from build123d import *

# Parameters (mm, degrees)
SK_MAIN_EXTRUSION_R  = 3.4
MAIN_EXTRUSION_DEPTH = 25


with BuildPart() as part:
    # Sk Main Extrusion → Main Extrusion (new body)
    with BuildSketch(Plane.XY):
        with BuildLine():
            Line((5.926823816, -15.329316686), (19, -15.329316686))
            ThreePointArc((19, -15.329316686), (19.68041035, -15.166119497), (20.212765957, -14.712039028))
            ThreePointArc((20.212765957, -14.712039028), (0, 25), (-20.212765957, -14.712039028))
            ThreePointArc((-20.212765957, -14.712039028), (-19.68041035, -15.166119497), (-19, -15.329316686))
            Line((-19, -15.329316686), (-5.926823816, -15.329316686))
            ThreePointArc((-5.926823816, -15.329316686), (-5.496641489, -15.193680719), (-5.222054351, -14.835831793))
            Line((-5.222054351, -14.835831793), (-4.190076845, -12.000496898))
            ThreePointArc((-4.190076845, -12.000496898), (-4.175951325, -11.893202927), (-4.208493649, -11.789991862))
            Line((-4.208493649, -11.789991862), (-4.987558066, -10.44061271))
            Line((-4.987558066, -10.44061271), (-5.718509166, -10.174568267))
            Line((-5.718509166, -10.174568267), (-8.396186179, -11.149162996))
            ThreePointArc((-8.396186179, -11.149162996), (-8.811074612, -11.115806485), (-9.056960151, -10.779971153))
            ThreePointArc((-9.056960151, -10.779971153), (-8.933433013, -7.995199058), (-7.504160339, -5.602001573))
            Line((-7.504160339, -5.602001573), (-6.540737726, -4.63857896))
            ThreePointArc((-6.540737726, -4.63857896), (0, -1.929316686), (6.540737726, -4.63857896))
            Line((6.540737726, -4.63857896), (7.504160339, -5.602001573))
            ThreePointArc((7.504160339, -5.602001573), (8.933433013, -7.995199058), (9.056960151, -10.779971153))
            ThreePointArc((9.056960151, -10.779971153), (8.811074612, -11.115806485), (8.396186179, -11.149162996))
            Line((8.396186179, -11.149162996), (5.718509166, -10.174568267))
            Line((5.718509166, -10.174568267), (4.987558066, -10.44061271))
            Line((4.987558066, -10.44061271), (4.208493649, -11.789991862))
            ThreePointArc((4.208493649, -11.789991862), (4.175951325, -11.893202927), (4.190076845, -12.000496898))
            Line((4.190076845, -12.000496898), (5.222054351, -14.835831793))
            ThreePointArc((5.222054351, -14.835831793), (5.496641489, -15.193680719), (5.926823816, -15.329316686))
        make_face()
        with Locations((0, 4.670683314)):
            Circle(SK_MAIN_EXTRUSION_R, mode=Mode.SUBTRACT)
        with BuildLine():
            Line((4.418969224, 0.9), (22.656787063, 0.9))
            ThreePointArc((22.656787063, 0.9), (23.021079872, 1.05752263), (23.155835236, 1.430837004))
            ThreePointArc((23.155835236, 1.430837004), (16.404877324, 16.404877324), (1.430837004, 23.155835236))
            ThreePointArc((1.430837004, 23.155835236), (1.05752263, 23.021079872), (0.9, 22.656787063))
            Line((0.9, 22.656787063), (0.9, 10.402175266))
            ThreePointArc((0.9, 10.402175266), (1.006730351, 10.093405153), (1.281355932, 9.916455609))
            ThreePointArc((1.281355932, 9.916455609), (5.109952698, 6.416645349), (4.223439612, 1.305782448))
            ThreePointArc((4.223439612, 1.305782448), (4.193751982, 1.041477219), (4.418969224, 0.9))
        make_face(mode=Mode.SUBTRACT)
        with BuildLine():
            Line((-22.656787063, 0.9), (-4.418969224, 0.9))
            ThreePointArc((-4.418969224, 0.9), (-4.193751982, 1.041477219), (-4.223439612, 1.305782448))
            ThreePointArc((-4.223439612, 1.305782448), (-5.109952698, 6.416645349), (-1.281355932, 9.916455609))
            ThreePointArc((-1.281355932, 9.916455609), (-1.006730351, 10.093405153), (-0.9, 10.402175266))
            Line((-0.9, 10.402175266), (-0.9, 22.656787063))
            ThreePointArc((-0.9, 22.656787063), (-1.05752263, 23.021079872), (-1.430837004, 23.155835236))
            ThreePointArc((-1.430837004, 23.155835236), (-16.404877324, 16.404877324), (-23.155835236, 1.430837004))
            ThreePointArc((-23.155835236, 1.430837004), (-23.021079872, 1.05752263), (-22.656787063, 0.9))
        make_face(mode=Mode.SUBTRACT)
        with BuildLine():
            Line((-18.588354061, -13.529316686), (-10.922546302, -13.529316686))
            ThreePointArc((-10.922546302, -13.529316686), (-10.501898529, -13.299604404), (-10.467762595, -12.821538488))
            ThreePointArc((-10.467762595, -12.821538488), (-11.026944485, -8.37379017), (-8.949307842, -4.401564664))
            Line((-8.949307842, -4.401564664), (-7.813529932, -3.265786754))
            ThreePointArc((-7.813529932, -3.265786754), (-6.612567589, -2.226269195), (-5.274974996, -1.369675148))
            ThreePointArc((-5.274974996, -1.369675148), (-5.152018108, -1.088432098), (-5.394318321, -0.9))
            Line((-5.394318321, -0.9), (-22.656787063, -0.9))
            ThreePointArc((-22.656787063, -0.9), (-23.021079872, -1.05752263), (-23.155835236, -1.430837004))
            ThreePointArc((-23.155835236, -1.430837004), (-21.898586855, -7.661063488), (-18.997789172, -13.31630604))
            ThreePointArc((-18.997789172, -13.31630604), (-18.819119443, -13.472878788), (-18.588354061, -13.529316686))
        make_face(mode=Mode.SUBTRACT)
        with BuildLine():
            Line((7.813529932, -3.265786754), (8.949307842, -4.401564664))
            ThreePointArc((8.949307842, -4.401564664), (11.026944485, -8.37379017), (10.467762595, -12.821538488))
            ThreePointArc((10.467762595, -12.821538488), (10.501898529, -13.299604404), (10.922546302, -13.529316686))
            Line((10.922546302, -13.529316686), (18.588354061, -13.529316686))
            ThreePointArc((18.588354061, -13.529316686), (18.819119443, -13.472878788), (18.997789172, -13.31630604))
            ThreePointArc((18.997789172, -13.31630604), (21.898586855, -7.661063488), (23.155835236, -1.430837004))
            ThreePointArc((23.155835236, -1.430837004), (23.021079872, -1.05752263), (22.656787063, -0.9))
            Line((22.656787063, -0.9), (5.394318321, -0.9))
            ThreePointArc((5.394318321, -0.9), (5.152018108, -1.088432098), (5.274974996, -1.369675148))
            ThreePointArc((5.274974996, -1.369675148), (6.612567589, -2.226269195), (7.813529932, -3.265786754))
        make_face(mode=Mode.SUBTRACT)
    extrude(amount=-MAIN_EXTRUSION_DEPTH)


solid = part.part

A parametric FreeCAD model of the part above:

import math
import FreeCAD as App
import Part
import Sketcher
Q = App.Units.Quantity

doc = App.newDocument("Part")
body = doc.addObject("PartDesign::Body", "Body")

sketch1 = body.newObject("Sketcher::SketchObject", "Sketch")
sketch1.AttachmentSupport = (doc.getObject("XY_Plane"), [""])
sketch1.MapMode = "FlatFace"
sketch1.addGeometry([
    Part.LineSegment(App.Vector(5.93, -15.33, 0), App.Vector(19, -15.33, 0)),
    Part.ArcOfCircle(Part.Circle(App.Vector(19, -13.83, 0), App.Vector(0, 0, 1), 1.5), math.radians(-90), math.radians(-36)),
    Part.ArcOfCircle(Part.Circle(App.Vector(0, 0, 0), App.Vector(0, 0, 1), 25), math.radians(-36), math.radians(216)),
    Part.ArcOfCircle(Part.Circle(App.Vector(-19, -13.83, 0), App.Vector(0, 0, 1), 1.5), math.radians(-144), math.radians(-90)),
    Part.LineSegment(App.Vector(-19, -15.33, 0), App.Vector(-5.93, -15.33, 0)),
    Part.ArcOfCircle(Part.Circle(App.Vector(-5.93, -14.58, 0), App.Vector(0, 0, 1), 0.75), math.radians(-90), math.radians(-20)),
    Part.LineSegment(App.Vector(-5.22, -14.84, 0), App.Vector(-4.19, -12, 0)),
    Part.ArcOfCircle(Part.Circle(App.Vector(-4.42, -11.91, 0), App.Vector(0, 0, 1), 0.25), math.radians(-20), math.radians(30)),
    Part.LineSegment(App.Vector(-4.21, -11.79, 0), App.Vector(-4.99, -10.44, 0)),
    Part.LineSegment(App.Vector(-4.99, -10.44, 0), App.Vector(-5.72, -10.17, 0)),
    Part.LineSegment(App.Vector(-5.72, -10.17, 0), App.Vector(-8.4, -11.15, 0)),
    Part.ArcOfCircle(Part.Circle(App.Vector(-8.57, -10.68, 0), App.Vector(0, 0, 1), 0.5), math.radians(-168), math.radians(-70)),
    Part.ArcOfCircle(Part.Circle(App.Vector(-3.47, -9.63, 0), App.Vector(0, 0, 1), 5.7), math.radians(135), math.radians(192)),
    Part.LineSegment(App.Vector(-7.5, -5.6, 0), App.Vector(-6.54, -4.64, 0)),
    Part.ArcOfCircle(Part.Circle(App.Vector(0, -11.18, 0), App.Vector(0, 0, 1), 9.25), math.radians(45), math.radians(135)),
    Part.LineSegment(App.Vector(6.54, -4.64, 0), App.Vector(7.5, -5.6, 0)),
    Part.ArcOfCircle(Part.Circle(App.Vector(3.47, -9.63, 0), App.Vector(0, 0, 1), 5.7), math.radians(-12), math.radians(45)),
    Part.ArcOfCircle(Part.Circle(App.Vector(8.57, -10.68, 0), App.Vector(0, 0, 1), 0.5), math.radians(-110), math.radians(-12)),
    Part.LineSegment(App.Vector(8.4, -11.15, 0), App.Vector(5.72, -10.17, 0)),
    Part.LineSegment(App.Vector(5.72, -10.17, 0), App.Vector(4.99, -10.44, 0)),
    Part.LineSegment(App.Vector(4.99, -10.44, 0), App.Vector(4.21, -11.79, 0)),
    Part.ArcOfCircle(Part.Circle(App.Vector(4.42, -11.91, 0), App.Vector(0, 0, 1), 0.25), math.radians(150), math.radians(200)),
    Part.LineSegment(App.Vector(4.19, -12, 0), App.Vector(5.22, -14.84, 0)),
    Part.ArcOfCircle(Part.Circle(App.Vector(5.93, -14.58, 0), App.Vector(0, 0, 1), 0.75), math.radians(-160), math.radians(-90)),
    Part.LineSegment(App.Vector(-10.92, -13.53, 0), App.Vector(-18.59, -13.53, 0)),
    Part.ArcOfCircle(Part.Circle(App.Vector(-18.59, -13.03, 0), App.Vector(0, 0, 1), 0.5), math.radians(-145), math.radians(-90)),
    Part.ArcOfCircle(Part.Circle(App.Vector(0, 0, 0), App.Vector(0, 0, 1), 23.2), math.radians(-176), math.radians(-145)),
    Part.ArcOfCircle(Part.Circle(App.Vector(-22.66, -1.4, 0), App.Vector(0, 0, 1), 0.5), math.radians(90), math.radians(184)),
    Part.LineSegment(App.Vector(-22.66, -0.9, 0), App.Vector(-5.39, -0.9, 0)),
    Part.ArcOfCircle(Part.Circle(App.Vector(-5.39, -1.15, 0), App.Vector(0, 0, 1), 0.25), math.radians(-61), math.radians(90)),
    Part.ArcOfCircle(Part.Circle(App.Vector(0, -11.08, 0), App.Vector(0, 0, 1), 11.05), math.radians(118.51), math.radians(135)),
    Part.LineSegment(App.Vector(-7.81, -3.27, 0), App.Vector(-8.95, -4.4, 0)),
    Part.ArcOfCircle(Part.Circle(App.Vector(-3.65, -9.7, 0), App.Vector(0, 0, 1), 7.5), math.radians(135), math.radians(205)),
    Part.ArcOfCircle(Part.Circle(App.Vector(-10.92, -13.03, 0), App.Vector(0, 0, 1), 0.5), math.radians(-90), math.radians(25)),
    Part.LineSegment(App.Vector(8.95, -4.4, 0), App.Vector(7.81, -3.27, 0)),
    Part.ArcOfCircle(Part.Circle(App.Vector(0, -11.08, 0), App.Vector(0, 0, 1), 11.05), math.radians(45), math.radians(61.49)),
    Part.ArcOfCircle(Part.Circle(App.Vector(5.39, -1.15, 0), App.Vector(0, 0, 1), 0.25), math.radians(90), math.radians(241)),
    Part.LineSegment(App.Vector(5.39, -0.9, 0), App.Vector(22.66, -0.9, 0)),
    Part.ArcOfCircle(Part.Circle(App.Vector(22.66, -1.4, 0), App.Vector(0, 0, 1), 0.5), math.radians(-4), math.radians(90)),
    Part.ArcOfCircle(Part.Circle(App.Vector(0, 0, 0), App.Vector(0, 0, 1), 23.2), math.radians(-35), math.radians(-4)),
    Part.ArcOfCircle(Part.Circle(App.Vector(18.59, -13.03, 0), App.Vector(0, 0, 1), 0.5), math.radians(-90), math.radians(-35)),
    Part.LineSegment(App.Vector(18.59, -13.53, 0), App.Vector(10.92, -13.53, 0)),
    Part.ArcOfCircle(Part.Circle(App.Vector(10.92, -13.03, 0), App.Vector(0, 0, 1), 0.5), math.radians(155), math.radians(270)),
    Part.ArcOfCircle(Part.Circle(App.Vector(3.65, -9.7, 0), App.Vector(0, 0, 1), 7.5), math.radians(-25), math.radians(45)),
    Part.Circle(App.Vector(0, 4.67, 0), App.Vector(0, 0, 1), 3.4),
    Part.LineSegment(App.Vector(-4.42, 0.9, 0), App.Vector(-22.66, 0.9, 0)),
    Part.ArcOfCircle(Part.Circle(App.Vector(-22.66, 1.4, 0), App.Vector(0, 0, 1), 0.5), math.radians(176), math.radians(270)),
    Part.ArcOfCircle(Part.Circle(App.Vector(0, 0, 0), App.Vector(0, 0, 1), 23.2), math.radians(94), math.radians(176)),
    Part.ArcOfCircle(Part.Circle(App.Vector(-1.4, 22.66, 0), App.Vector(0, 0, 1), 0.5), math.radians(0), math.radians(94)),
    Part.LineSegment(App.Vector(-0.9, 22.66, 0), App.Vector(-0.9, 10.4, 0)),
    Part.ArcOfCircle(Part.Circle(App.Vector(-1.4, 10.4, 0), App.Vector(0, 0, 1), 0.5), math.radians(-76), math.radians(0)),
    Part.ArcOfCircle(Part.Circle(App.Vector(0, 4.67, 0), App.Vector(0, 0, 1), 5.4), math.radians(104), math.radians(219)),
    Part.ArcOfCircle(Part.Circle(App.Vector(-4.42, 1.15, 0), App.Vector(0, 0, 1), 0.25), math.radians(-90), math.radians(39)),
    Part.LineSegment(App.Vector(22.66, 0.9, 0), App.Vector(4.42, 0.9, 0)),
    Part.ArcOfCircle(Part.Circle(App.Vector(4.42, 1.15, 0), App.Vector(0, 0, 1), 0.25), math.radians(141), math.radians(270)),
    Part.ArcOfCircle(Part.Circle(App.Vector(0, 4.67, 0), App.Vector(0, 0, 1), 5.4), math.radians(-39), math.radians(76)),
    Part.ArcOfCircle(Part.Circle(App.Vector(1.4, 10.4, 0), App.Vector(0, 0, 1), 0.5), math.radians(-180), math.radians(-104)),
    Part.LineSegment(App.Vector(0.9, 10.4, 0), App.Vector(0.9, 22.66, 0)),
    Part.ArcOfCircle(Part.Circle(App.Vector(1.4, 22.66, 0), App.Vector(0, 0, 1), 0.5), math.radians(86), math.radians(180)),
    Part.ArcOfCircle(Part.Circle(App.Vector(0, 0, 0), App.Vector(0, 0, 1), 23.2), math.radians(4), math.radians(86)),
    Part.ArcOfCircle(Part.Circle(App.Vector(22.66, 1.4, 0), App.Vector(0, 0, 1), 0.5), math.radians(-90), math.radians(4)),
], False)
sketch1.addConstraint([
    Sketcher.Constraint("Tangent", 0, 2, 1, 1),
    Sketcher.Constraint("Tangent", 1, 2, 2, 1),
    Sketcher.Constraint("Tangent", 2, 2, 3, 1),
    Sketcher.Constraint("Tangent", 3, 2, 4, 1),
    Sketcher.Constraint("Tangent", 4, 2, 5, 1),
    Sketcher.Constraint("Tangent", 5, 2, 6, 1),
    Sketcher.Constraint("Tangent", 6, 2, 7, 1),
    Sketcher.Constraint("Tangent", 7, 2, 8, 1),
    Sketcher.Constraint("Coincident", 8, 2, 9, 1),
    Sketcher.Constraint("Coincident", 9, 2, 10, 1),
    Sketcher.Constraint("Tangent", 10, 2, 11, 2),
    Sketcher.Constraint("Tangent", 11, 1, 12, 2),
    Sketcher.Constraint("Tangent", 12, 1, 13, 1),
    Sketcher.Constraint("Tangent", 13, 2, 14, 2),
    Sketcher.Constraint("Tangent", 14, 1, 15, 1),
    Sketcher.Constraint("Tangent", 15, 2, 16, 2),
    Sketcher.Constraint("Tangent", 16, 1, 17, 2),
    Sketcher.Constraint("Tangent", 17, 1, 18, 1),
    Sketcher.Constraint("Coincident", 18, 2, 19, 1),
    Sketcher.Constraint("Coincident", 19, 2, 20, 1),
    Sketcher.Constraint("Tangent", 20, 2, 21, 1),
    Sketcher.Constraint("Tangent", 21, 2, 22, 1),
    Sketcher.Constraint("Tangent", 22, 2, 23, 1),
    Sketcher.Constraint("Tangent", 23, 2, 0, 1),
    Sketcher.Constraint("Tangent", 24, 2, 25, 2),
    Sketcher.Constraint("Tangent", 25, 1, 26, 2),
    Sketcher.Constraint("Tangent", 26, 1, 27, 2),
    Sketcher.Constraint("Tangent", 27, 1, 28, 1),
    Sketcher.Constraint("Tangent", 28, 2, 29, 2),
    Sketcher.Constraint("Tangent", 29, 1, 30, 1),
    Sketcher.Constraint("Tangent", 30, 2, 31, 1),
    Sketcher.Constraint("Tangent", 31, 2, 32, 1),
    Sketcher.Constraint("Tangent", 32, 2, 33, 2),
    Sketcher.Constraint("Tangent", 33, 1, 24, 1),
    Sketcher.Constraint("Tangent", 34, 2, 35, 1),
    Sketcher.Constraint("Tangent", 35, 2, 36, 2),
    Sketcher.Constraint("Tangent", 36, 1, 37, 1),
    Sketcher.Constraint("Tangent", 37, 2, 38, 2),
    Sketcher.Constraint("Tangent", 38, 1, 39, 2),
    Sketcher.Constraint("Tangent", 39, 1, 40, 2),
    Sketcher.Constraint("Tangent", 40, 1, 41, 1),
    Sketcher.Constraint("Tangent", 41, 2, 42, 2),
    Sketcher.Constraint("Tangent", 42, 1, 43, 1),
    Sketcher.Constraint("Tangent", 43, 2, 34, 1),
    Sketcher.Constraint("Tangent", 45, 2, 46, 2),
    Sketcher.Constraint("Tangent", 46, 1, 47, 2),
    Sketcher.Constraint("Tangent", 47, 1, 48, 2),
    Sketcher.Constraint("Tangent", 48, 1, 49, 1),
    Sketcher.Constraint("Tangent", 49, 2, 50, 2),
    Sketcher.Constraint("Tangent", 50, 1, 51, 1),
    Sketcher.Constraint("Tangent", 51, 2, 52, 2),
    Sketcher.Constraint("Tangent", 52, 1, 45, 1),
    Sketcher.Constraint("Tangent", 53, 2, 54, 2),
    Sketcher.Constraint("Tangent", 54, 1, 55, 1),
    Sketcher.Constraint("Tangent", 55, 2, 56, 2),
    Sketcher.Constraint("Tangent", 56, 1, 57, 1),
    Sketcher.Constraint("Tangent", 57, 2, 58, 2),
    Sketcher.Constraint("Tangent", 58, 1, 59, 2),
    Sketcher.Constraint("Tangent", 59, 1, 60, 2),
    Sketcher.Constraint("Tangent", 60, 1, 53, 1),
    Sketcher.Constraint("Horizontal", 0),
    Sketcher.Constraint("Horizontal", 4),
    Sketcher.Constraint("Horizontal", 24),
    Sketcher.Constraint("Horizontal", 28),
    Sketcher.Constraint("Horizontal", 37),
    Sketcher.Constraint("Horizontal", 41),
    Sketcher.Constraint("Horizontal", 45),
    Sketcher.Constraint("Vertical", 49),
    Sketcher.Constraint("Horizontal", 53),
    Sketcher.Constraint("Vertical", 57),
    Sketcher.Constraint("Coincident", 2, 3, -1, 1),
    Sketcher.Constraint("Coincident", 26, 3, -1, 1),
    Sketcher.Constraint("Coincident", 39, 3, -1, 1),
    Sketcher.Constraint("Coincident", 47, 3, -1, 1),
    Sketcher.Constraint("Coincident", 59, 3, -1, 1),
    Sketcher.Constraint("Coincident", 35, 3, 30, 3),
    Sketcher.Constraint("Coincident", 51, 3, 44, 3),
    Sketcher.Constraint("Coincident", 55, 3, 44, 3),
    Sketcher.Constraint("Equal", 1, 3),
    Sketcher.Constraint("Equal", 12, 16),
    Sketcher.Constraint("Equal", 11, 17),
    Sketcher.Constraint("Equal", 7, 21),
    Sketcher.Constraint("Equal", 5, 23),
    Sketcher.Constraint("Equal", 17, 25),
    Sketcher.Constraint("Equal", 25, 27),
    Sketcher.Constraint("Equal", 21, 29),
    Sketcher.Constraint("Equal", 27, 33),
    Sketcher.Constraint("Equal", 30, 35),
    Sketcher.Constraint("Equal", 29, 36),
    Sketcher.Constraint("Equal", 33, 38),
    Sketcher.Constraint("Equal", 26, 39),
    Sketcher.Constraint("Equal", 38, 40),
    Sketcher.Constraint("Equal", 40, 42),
    Sketcher.Constraint("Equal", 32, 43),
    Sketcher.Constraint("Equal", 42, 46),
    Sketcher.Constraint("Equal", 39, 47),
    Sketcher.Constraint("Equal", 46, 48),
    Sketcher.Constraint("Equal", 48, 50),
    Sketcher.Constraint("Equal", 36, 52),
    Sketcher.Constraint("Equal", 52, 54),
    Sketcher.Constraint("Equal", 51, 55),
    Sketcher.Constraint("Equal", 50, 56),
    Sketcher.Constraint("Equal", 56, 58),
    Sketcher.Constraint("Equal", 47, 59),
    Sketcher.Constraint("Equal", 58, 60),
    Sketcher.Constraint("Symmetric", 12, 3, 16, 3, -2),
    Sketcher.Constraint("Symmetric", 7, 3, 21, 3, -2),
    Sketcher.Constraint("Symmetric", 5, 3, 23, 3, -2),
    Sketcher.Constraint("Symmetric", 29, 3, 36, 3, -2),
    Sketcher.Constraint("Symmetric", 33, 3, 42, 3, -2),
    Sketcher.Constraint("Symmetric", 52, 3, 54, 3, -2),
    Sketcher.Constraint("Symmetric", 10, 2, 17, 1, -2),
    Sketcher.Constraint("Symmetric", 8, 2, 19, 2, -2),
    Sketcher.Constraint("PointOnObject", 14, 3, -2),
    Sketcher.Constraint("Perpendicular", 6, 9),
    Sketcher.Constraint("Perpendicular", 13, 15),
    Sketcher.Constraint("Parallel", 9, 18),
    Sketcher.Constraint("Parallel", 10, 19),
    Sketcher.Constraint("Perpendicular", 15, 31),
    Sketcher.Constraint("Perpendicular", 31, 34),
    Sketcher.Constraint("Horizontal", 50, 3, 56, 3),
    Sketcher.Constraint("Vertical", 27, 3, 46, 3),
    Sketcher.Constraint("Radius", 2, 25.0),
    Sketcher.Constraint("Diameter", 44, 6.8),
    Sketcher.Constraint("Radius", 1, 1.5),
    Sketcher.Constraint("Radius", 11, 0.5),
    Sketcher.Constraint("Radius", 12, 5.7),
    Sketcher.Constraint("Radius", 26, 23.2),
    Sketcher.Constraint("Radius", 32, 7.5),
    Sketcher.Constraint("Radius", 51, 5.4),
    Sketcher.Constraint("Angle", 6, Q("70 deg")),
    Sketcher.Constraint("Angle", 8, Q("120 deg")),
    Sketcher.Constraint("Radius", 5, 0.75),
    Sketcher.Constraint("Radius", 7, 0.25),
    Sketcher.Constraint("Radius", 14, 9.25),
    Sketcher.Constraint("Radius", 30, 11.05),
    Sketcher.Constraint("DistanceX", -1, 1, 1, 3, 19.0),
    Sketcher.Constraint("DistanceY", 27, 3, -1, 1, 1.4),
    Sketcher.Constraint("DistanceX", 48, 3, -1, 1, 1.4),
    Sketcher.Constraint("DistanceX", 7, 3, -1, 1, 4.425),
    Sketcher.Constraint("DistanceY", 12, 1, -1, 1, 5.602002),
    Sketcher.Constraint("Distance", 6, 3.0173),
    Sketcher.Constraint("DistanceX", 28, 1, 28, 2, 17.262469),
    Sketcher.Constraint("DistanceY", 49, 2, 49, 1, 12.254612),
    Sketcher.Constraint("Distance", 8, 1.558129),
    Sketcher.Constraint("Distance", 9, 0.777862),
    Sketcher.Constraint("DistanceX", 24, 2, 24, 1, 7.665808),
    Sketcher.Constraint("DistanceX", 12, 3, -1, 1, 3.473652),
    Sketcher.Constraint("DistanceX", 25, 1, -1, 1, 18.997789),
])
pad1 = body.newObject("PartDesign::Pad", "Pad")
pad1.Profile = sketch1
pad1.Length = 25
pad1.Reversed = True

doc.recompute()
